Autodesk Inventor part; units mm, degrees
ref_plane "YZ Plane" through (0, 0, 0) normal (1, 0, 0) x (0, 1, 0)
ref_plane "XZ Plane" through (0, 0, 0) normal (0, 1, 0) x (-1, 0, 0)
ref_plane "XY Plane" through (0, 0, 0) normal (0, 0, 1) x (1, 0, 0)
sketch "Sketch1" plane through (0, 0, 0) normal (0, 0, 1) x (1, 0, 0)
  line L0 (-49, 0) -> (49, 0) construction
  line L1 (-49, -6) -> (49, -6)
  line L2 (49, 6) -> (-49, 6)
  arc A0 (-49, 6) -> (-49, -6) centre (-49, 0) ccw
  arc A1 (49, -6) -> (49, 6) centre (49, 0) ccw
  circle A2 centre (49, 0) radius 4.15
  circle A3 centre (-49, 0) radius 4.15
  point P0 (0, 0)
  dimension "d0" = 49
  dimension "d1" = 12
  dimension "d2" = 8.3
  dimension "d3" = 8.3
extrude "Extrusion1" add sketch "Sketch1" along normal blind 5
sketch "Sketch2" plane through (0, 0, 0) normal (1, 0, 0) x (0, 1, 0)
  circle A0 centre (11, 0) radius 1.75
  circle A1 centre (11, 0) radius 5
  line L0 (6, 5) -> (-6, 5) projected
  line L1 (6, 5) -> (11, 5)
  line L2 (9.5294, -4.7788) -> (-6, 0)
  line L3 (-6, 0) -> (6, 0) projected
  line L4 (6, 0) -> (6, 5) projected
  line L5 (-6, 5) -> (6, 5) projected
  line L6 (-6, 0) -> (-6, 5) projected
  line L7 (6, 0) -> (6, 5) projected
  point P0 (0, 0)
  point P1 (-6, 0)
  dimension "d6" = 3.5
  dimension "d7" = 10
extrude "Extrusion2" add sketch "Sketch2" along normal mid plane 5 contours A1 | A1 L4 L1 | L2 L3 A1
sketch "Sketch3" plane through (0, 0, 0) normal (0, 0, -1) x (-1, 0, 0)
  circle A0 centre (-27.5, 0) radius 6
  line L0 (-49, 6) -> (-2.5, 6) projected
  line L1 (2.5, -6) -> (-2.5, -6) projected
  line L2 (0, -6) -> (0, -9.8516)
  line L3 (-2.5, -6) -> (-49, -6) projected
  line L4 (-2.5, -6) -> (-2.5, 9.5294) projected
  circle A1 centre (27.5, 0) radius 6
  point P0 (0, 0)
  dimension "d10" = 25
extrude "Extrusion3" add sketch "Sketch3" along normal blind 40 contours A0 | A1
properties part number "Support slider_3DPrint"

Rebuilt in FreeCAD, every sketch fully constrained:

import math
import FreeCAD as App
import Part
import Sketcher
from FreeCAD import Vector

doc = App.newDocument("Part")
body = doc.addObject("PartDesign::Body", "Body")

# Sketch on XY plane
sketch1 = doc.addObject("Sketcher::SketchObject", "Sketch")
body.addObject(sketch1)
sketch1.AttachmentSupport = (doc.XY_Plane, [""])
sketch1.MapMode = "FlatFace"
sketch1.addGeometry(Part.ArcOfCircle(Part.Circle(Vector(-49, 0, 0), Vector(0, 0, 1), 6), math.radians(90), math.radians(270)), False)
sketch1.addGeometry(Part.LineSegment(Vector(-49, -6, 0), Vector(49, -6, 0)), False)
sketch1.addGeometry(Part.ArcOfCircle(Part.Circle(Vector(49, 0, 0), Vector(0, 0, 1), 6), math.radians(-90), math.radians(90)), False)
sketch1.addGeometry(Part.LineSegment(Vector(49, 6, 0), Vector(-49, 6, 0)), False)
sketch1.addGeometry(Part.Circle(Vector(-49, 0, 0), Vector(0, 0, 1), 4.2), False)
sketch1.addGeometry(Part.Circle(Vector(49, 0, 0), Vector(0, 0, 1), 4.2), False)
sketch1.addConstraint(Sketcher.Constraint("Tangent", 0, 2, 1, 1))
sketch1.addConstraint(Sketcher.Constraint("Tangent", 1, 2, 2, 1))
sketch1.addConstraint(Sketcher.Constraint("Tangent", 2, 2, 3, 1))
sketch1.addConstraint(Sketcher.Constraint("Tangent", 3, 2, 0, 1))
sketch1.addConstraint(Sketcher.Constraint("Horizontal", 1))
sketch1.addConstraint(Sketcher.Constraint("Horizontal", 3))
sketch1.addConstraint(Sketcher.Constraint("Coincident", 4, 3, 0, 3))
sketch1.addConstraint(Sketcher.Constraint("Coincident", 5, 3, 2, 3))
sketch1.addConstraint(Sketcher.Constraint("Equal", 4, 5))
sketch1.addConstraint(Sketcher.Constraint("Symmetric", 0, 3, 2, 3, -1, 1))
sketch1.addConstraint(Sketcher.Constraint("Radius", 0, 6.0))
sketch1.addConstraint(Sketcher.Constraint("Diameter", 4, 8.3))
sketch1.addConstraint(Sketcher.Constraint("DistanceX", 0, 3, -1, 1, 49.0))
pad1 = doc.addObject("PartDesign::Pad", "Pad")
body.addObject(pad1)
pad1.Profile = sketch1
pad1.Length = 5

# Sketch on YZ plane
sketch2 = doc.addObject("Sketcher::SketchObject", "Sketch001")
body.addObject(sketch2)
sketch2.AttachmentSupport = (doc.YZ_Plane, [""])
sketch2.MapMode = "FlatFace"
sketch2.addGeometry(Part.ArcOfCircle(Part.Circle(Vector(11, 0, 0), Vector(0, 0, 1), 5), math.radians(-107), math.radians(90)), False)
sketch2.addGeometry(Part.LineSegment(Vector(11, 5, 0), Vector(6, 5, 0)), False)
sketch2.addGeometry(Part.LineSegment(Vector(6, 5, 0), Vector(6, 0, 0)), False)
sketch2.addGeometry(Part.LineSegment(Vector(6, 0, 0), Vector(-6, 0, 0)), False)
sketch2.addGeometry(Part.LineSegment(Vector(-6, 0, 0), Vector(9.5, -4.8, 0)), False)
sketch2.addGeometry(Part.Circle(Vector(11, 0, 0), Vector(0, 0, 1), 1.8), False)
sketch2.addConstraint(Sketcher.Constraint("Tangent", 0, 2, 1, 1))
sketch2.addConstraint(Sketcher.Constraint("Coincident", 1, 2, 2, 1))
sketch2.addConstraint(Sketcher.Constraint("Coincident", 2, 2, 3, 1))
sketch2.addConstraint(Sketcher.Constraint("Coincident", 3, 2, 4, 1))
sketch2.addConstraint(Sketcher.Constraint("Tangent", 4, 2, 0, 1))
sketch2.addConstraint(Sketcher.Constraint("Horizontal", 1))
sketch2.addConstraint(Sketcher.Constraint("Vertical", 2))
sketch2.addConstraint(Sketcher.Constraint("Horizontal", 3))
sketch2.addConstraint(Sketcher.Constraint("Coincident", 5, 3, 0, 3))
sketch2.addConstraint(Sketcher.Constraint("Symmetric", 2, 2, 3, 2, -1, 1))
sketch2.addConstraint(Sketcher.Constraint("PointOnObject", 0, 3, -1))
sketch2.addConstraint(Sketcher.Constraint("Equal", 1, 2))
sketch2.addConstraint(Sketcher.Constraint("Radius", 0, 5.0))
sketch2.addConstraint(Sketcher.Constraint("Diameter", 5, 3.5))
sketch2.addConstraint(Sketcher.Constraint("DistanceX", 3, 2, 3, 1, 12.0))
pad2 = doc.addObject("PartDesign::Pad", "Pad001")
body.addObject(pad2)
pad2.Profile = sketch2
pad2.Length = 5
pad2.Midplane = True

# Sketch on XY plane
sketch3 = doc.addObject("Sketcher::SketchObject", "Sketch002")
body.addObject(sketch3)
sketch3.AttachmentSupport = (doc.XY_Plane, [""])
sketch3.MapMode = "FlatFace"
sketch3.addGeometry(Part.Circle(Vector(28, 0, 0), Vector(0, 0, 1), 6), False)
sketch3.addGeometry(Part.Circle(Vector(-28, 0, 0), Vector(0, 0, 1), 6), False)
sketch3.addConstraint(Sketcher.Constraint("Equal", 0, 1))
sketch3.addConstraint(Sketcher.Constraint("Symmetric", 0, 3, 1, 3, -1, 1))
sketch3.addConstraint(Sketcher.Constraint("PointOnObject", 0, 3, -1))
sketch3.addConstraint(Sketcher.Constraint("Diameter", 0, 12.0))
sketch3.addConstraint(Sketcher.Constraint("DistanceX", 1, 3, 0, 3, 55.0))
pad3 = doc.addObject("PartDesign::Pad", "Pad002")
body.addObject(pad3)
pad3.Profile = sketch3
pad3.Length = 40
pad3.Reversed = True

doc.recompute()
